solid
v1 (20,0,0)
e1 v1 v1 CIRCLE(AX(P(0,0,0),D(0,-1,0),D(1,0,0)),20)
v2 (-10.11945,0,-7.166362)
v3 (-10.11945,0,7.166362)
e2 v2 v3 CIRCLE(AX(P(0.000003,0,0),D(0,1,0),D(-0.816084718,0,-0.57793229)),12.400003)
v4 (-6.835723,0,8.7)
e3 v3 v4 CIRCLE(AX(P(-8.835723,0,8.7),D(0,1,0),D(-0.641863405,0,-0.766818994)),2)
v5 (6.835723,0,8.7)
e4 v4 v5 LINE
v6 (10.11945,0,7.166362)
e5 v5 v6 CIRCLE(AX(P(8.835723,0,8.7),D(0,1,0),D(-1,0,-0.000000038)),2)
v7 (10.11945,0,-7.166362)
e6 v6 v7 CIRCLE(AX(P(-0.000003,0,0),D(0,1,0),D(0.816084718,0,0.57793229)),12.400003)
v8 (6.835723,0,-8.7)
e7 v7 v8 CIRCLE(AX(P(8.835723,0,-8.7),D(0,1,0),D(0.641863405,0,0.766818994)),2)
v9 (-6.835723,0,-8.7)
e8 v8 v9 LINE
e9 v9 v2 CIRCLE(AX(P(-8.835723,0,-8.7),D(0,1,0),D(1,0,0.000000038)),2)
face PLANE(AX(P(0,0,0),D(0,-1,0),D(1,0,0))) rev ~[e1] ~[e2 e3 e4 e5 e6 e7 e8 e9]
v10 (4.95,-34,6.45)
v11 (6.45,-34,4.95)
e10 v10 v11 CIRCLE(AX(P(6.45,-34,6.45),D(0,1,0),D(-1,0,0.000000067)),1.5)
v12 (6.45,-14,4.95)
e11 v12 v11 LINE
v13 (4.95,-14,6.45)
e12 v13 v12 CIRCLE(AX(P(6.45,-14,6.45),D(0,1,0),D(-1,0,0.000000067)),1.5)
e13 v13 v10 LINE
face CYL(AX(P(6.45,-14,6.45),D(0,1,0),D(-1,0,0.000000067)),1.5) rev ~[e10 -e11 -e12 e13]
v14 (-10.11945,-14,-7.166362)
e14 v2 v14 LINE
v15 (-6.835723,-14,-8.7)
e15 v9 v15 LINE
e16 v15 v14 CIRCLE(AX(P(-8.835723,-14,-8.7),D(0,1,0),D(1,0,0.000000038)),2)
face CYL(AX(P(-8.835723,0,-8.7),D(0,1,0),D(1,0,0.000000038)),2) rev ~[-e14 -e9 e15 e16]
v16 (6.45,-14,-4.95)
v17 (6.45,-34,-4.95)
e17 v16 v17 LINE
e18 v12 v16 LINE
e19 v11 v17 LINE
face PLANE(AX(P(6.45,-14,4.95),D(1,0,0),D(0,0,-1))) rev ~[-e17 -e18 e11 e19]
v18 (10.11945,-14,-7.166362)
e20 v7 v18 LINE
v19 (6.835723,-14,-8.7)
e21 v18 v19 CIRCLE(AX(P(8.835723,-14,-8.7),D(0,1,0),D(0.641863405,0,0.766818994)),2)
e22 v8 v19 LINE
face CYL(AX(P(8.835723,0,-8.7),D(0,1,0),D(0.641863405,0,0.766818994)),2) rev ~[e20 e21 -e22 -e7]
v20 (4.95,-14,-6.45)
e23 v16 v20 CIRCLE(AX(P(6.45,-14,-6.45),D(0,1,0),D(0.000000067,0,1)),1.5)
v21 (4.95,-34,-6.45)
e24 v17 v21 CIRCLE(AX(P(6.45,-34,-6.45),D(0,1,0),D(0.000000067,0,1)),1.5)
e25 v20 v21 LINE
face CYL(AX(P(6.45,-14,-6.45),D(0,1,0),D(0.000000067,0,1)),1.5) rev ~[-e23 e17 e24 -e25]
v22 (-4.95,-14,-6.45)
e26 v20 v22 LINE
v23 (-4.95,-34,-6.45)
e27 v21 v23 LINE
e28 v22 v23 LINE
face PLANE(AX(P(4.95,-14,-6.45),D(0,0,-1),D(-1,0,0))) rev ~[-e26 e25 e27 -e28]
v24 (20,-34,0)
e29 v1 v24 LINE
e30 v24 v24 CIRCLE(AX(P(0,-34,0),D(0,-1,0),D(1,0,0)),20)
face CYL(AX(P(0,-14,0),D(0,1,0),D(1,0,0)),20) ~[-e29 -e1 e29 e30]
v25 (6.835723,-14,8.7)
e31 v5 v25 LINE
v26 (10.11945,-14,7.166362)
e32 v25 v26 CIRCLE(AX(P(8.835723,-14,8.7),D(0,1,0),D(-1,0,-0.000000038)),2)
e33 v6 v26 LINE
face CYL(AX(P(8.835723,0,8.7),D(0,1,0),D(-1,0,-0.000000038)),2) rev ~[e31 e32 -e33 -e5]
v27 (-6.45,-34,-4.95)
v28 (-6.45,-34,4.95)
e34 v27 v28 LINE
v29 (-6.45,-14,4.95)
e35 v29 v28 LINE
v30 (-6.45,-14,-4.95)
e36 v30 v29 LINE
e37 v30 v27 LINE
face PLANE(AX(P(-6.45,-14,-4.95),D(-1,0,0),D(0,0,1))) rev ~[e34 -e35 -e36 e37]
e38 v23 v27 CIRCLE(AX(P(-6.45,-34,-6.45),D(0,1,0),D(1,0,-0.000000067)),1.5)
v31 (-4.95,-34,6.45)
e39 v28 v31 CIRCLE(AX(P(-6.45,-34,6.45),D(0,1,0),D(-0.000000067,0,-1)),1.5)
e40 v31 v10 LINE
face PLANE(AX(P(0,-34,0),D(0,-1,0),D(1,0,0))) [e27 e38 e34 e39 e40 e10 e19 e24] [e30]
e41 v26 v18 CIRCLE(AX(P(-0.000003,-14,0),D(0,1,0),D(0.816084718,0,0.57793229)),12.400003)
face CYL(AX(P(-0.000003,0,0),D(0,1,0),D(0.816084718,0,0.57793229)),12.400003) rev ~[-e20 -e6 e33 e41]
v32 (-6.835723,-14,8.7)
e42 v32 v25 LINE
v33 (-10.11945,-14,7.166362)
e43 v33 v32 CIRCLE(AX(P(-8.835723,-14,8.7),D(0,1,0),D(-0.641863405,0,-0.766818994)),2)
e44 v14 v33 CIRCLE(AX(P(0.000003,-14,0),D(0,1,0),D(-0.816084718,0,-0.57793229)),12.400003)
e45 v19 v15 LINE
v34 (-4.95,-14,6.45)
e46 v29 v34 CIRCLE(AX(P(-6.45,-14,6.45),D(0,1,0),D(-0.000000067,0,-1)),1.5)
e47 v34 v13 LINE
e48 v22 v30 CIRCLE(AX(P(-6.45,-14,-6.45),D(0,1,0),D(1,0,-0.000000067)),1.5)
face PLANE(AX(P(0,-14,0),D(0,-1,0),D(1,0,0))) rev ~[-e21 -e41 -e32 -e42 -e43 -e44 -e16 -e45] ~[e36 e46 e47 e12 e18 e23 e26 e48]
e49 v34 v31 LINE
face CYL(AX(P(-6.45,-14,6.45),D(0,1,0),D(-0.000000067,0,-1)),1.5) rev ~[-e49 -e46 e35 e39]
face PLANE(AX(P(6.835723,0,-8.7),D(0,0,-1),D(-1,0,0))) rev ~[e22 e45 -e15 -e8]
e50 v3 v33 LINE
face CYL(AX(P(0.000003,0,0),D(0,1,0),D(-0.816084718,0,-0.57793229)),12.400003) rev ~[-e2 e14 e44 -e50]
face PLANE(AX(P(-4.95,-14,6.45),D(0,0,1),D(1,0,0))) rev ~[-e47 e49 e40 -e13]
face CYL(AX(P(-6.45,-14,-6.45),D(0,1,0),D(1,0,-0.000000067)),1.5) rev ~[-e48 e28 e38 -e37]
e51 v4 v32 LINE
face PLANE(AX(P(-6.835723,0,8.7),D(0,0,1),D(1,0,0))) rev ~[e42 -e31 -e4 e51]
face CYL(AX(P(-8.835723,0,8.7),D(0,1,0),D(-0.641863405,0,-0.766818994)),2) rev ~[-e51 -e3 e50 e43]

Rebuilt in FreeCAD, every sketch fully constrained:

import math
import FreeCAD as App
import Part
import Sketcher

V = App.Vector

doc = App.newDocument("Part")
body = doc.addObject("PartDesign::Body", "Body")

sketch1 = doc.addObject("Sketcher::SketchObject", "Sketch")
body.addObject(sketch1)
sketch1.AttachmentSupport = (doc.XZ_Plane, [""])
sketch1.MapMode = "FlatFace"
sketch1.addGeometry(Part.Circle(V(0, 0, 0), V(0, 0, 1), 20), False)
sketch1.addGeometry(Part.ArcOfCircle(Part.Circle(V(-8.8, -8.7, 0), V(0, 0, 1), 2), math.radians(130), math.radians(360)), False)
sketch1.addGeometry(Part.ArcOfCircle(Part.Circle(V(0, 0, 0), V(0, 0, 1), 12.4), math.radians(145), math.radians(215)), False)
sketch1.addGeometry(Part.ArcOfCircle(Part.Circle(V(-8.8, 8.7, 0), V(0, 0, 1), 2), math.radians(0), math.radians(230)), False)
sketch1.addGeometry(Part.LineSegment(V(-6.8, 8.7, 0), V(6.8, 8.7, 0)), False)
sketch1.addGeometry(Part.ArcOfCircle(Part.Circle(V(8.8, 8.7, 0), V(0, 0, 1), 2), math.radians(-50), math.radians(180)), False)
sketch1.addGeometry(Part.ArcOfCircle(Part.Circle(V(0, 0, 0), V(0, 0, 1), 12.4), math.radians(-35), math.radians(35)), False)
sketch1.addGeometry(Part.ArcOfCircle(Part.Circle(V(8.8, -8.7, 0), V(0, 0, 1), 2), math.radians(180), math.radians(410)), False)
sketch1.addGeometry(Part.LineSegment(V(6.8, -8.7, 0), V(-6.8, -8.7, 0)), False)
sketch1.addConstraint(Sketcher.Constraint("Coincident", 1, 1, 2, 2))
sketch1.addConstraint(Sketcher.Constraint("Coincident", 2, 1, 3, 2))
sketch1.addConstraint(Sketcher.Constraint("Coincident", 3, 1, 4, 1))
sketch1.addConstraint(Sketcher.Constraint("Coincident", 4, 2, 5, 2))
sketch1.addConstraint(Sketcher.Constraint("Coincident", 5, 1, 6, 2))
sketch1.addConstraint(Sketcher.Constraint("Coincident", 6, 1, 7, 2))
sketch1.addConstraint(Sketcher.Constraint("Coincident", 7, 1, 8, 1))
sketch1.addConstraint(Sketcher.Constraint("Coincident", 8, 2, 1, 2))
sketch1.addConstraint(Sketcher.Constraint("Horizontal", 4))
sketch1.addConstraint(Sketcher.Constraint("Horizontal", 8))
sketch1.addConstraint(Sketcher.Constraint("Coincident", 0, 3, -1, 1))
sketch1.addConstraint(Sketcher.Constraint("Coincident", 2, 3, -1, 1))
sketch1.addConstraint(Sketcher.Constraint("Coincident", 6, 3, -1, 1))
sketch1.addConstraint(Sketcher.Constraint("Equal", 1, 3))
sketch1.addConstraint(Sketcher.Constraint("Equal", 3, 5))
sketch1.addConstraint(Sketcher.Constraint("Equal", 2, 6))
sketch1.addConstraint(Sketcher.Constraint("Equal", 5, 7))
sketch1.addConstraint(Sketcher.Constraint("Symmetric", 1, 3, 5, 3, -1, 1))
sketch1.addConstraint(Sketcher.Constraint("Symmetric", 3, 3, 7, 3, -1, 1))
sketch1.addConstraint(Sketcher.Constraint("Symmetric", 3, 3, 5, 3, -2))
sketch1.addConstraint(Sketcher.Constraint("Horizontal", 5, 3, 3, 1))
sketch1.addConstraint(Sketcher.Constraint("Horizontal", 1, 3, 7, 1))
sketch1.addConstraint(Sketcher.Constraint("Diameter", 0, 40.0))
sketch1.addConstraint(Sketcher.Constraint("Radius", 1, 2.0))
sketch1.addConstraint(Sketcher.Constraint("DistanceY", 1, 3, -1, 1, 8.7))
sketch1.addConstraint(Sketcher.Constraint("Radius", 2, 12.400003))
sketch1.addConstraint(Sketcher.Constraint("DistanceX", 4, 1, 4, 2, 13.671446))
pad1 = doc.addObject("PartDesign::Pad", "Pad")
body.addObject(pad1)
pad1.Profile = sketch1
pad1.Length = 14

sketch2 = doc.addObject("Sketcher::SketchObject", "Sketch001")
body.addObject(sketch2)
sketch2.AttachmentSupport = (doc.XZ_Plane, [""])
sketch2.MapMode = "FlatFace"
sketch2.AttachmentOffset = App.Placement(V(0, 0, 14), App.Rotation())
sketch2.addGeometry(Part.Circle(V(0, 0, 0), V(0, 0, 1), 20), False)
sketch2.addGeometry(Part.LineSegment(V(-6.5, -5, 0), V(-6.5, 5, 0)), False)
sketch2.addGeometry(Part.ArcOfCircle(Part.Circle(V(-6.4, 6.4, 0), V(0, 0, 1), 1.5), math.radians(0), math.radians(270)), False)
sketch2.addGeometry(Part.LineSegment(V(-5, 6.5, 0), V(5, 6.5, 0)), False)
sketch2.addGeometry(Part.ArcOfCircle(Part.Circle(V(6.4, 6.4, 0), V(0, 0, 1), 1.5), math.radians(-90), math.radians(180)), False)
sketch2.addGeometry(Part.LineSegment(V(6.5, 5, 0), V(6.5, -5, 0)), False)
sketch2.addGeometry(Part.ArcOfCircle(Part.Circle(V(6.4, -6.4, 0), V(0, 0, 1), 1.5), math.radians(-180), math.radians(90)), False)
sketch2.addGeometry(Part.LineSegment(V(5, -6.5, 0), V(-5, -6.5, 0)), False)
sketch2.addGeometry(Part.ArcOfCircle(Part.Circle(V(-6.4, -6.4, 0), V(0, 0, 1), 1.5), math.radians(90), math.radians(360)), False)
sketch2.addConstraint(Sketcher.Constraint("Coincident", 1, 2, 2, 2))
sketch2.addConstraint(Sketcher.Constraint("Coincident", 2, 1, 3, 1))
sketch2.addConstraint(Sketcher.Constraint("Coincident", 3, 2, 4, 2))
sketch2.addConstraint(Sketcher.Constraint("Coincident", 4, 1, 5, 1))
sketch2.addConstraint(Sketcher.Constraint("Coincident", 5, 2, 6, 2))
sketch2.addConstraint(Sketcher.Constraint("Coincident", 6, 1, 7, 1))
sketch2.addConstraint(Sketcher.Constraint("Coincident", 7, 2, 8, 2))
sketch2.addConstraint(Sketcher.Constraint("Coincident", 8, 1, 1, 1))
sketch2.addConstraint(Sketcher.Constraint("Vertical", 1))
sketch2.addConstraint(Sketcher.Constraint("Horizontal", 3))
sketch2.addConstraint(Sketcher.Constraint("Vertical", 5))
sketch2.addConstraint(Sketcher.Constraint("Horizontal", 7))
sketch2.addConstraint(Sketcher.Constraint("Coincident", 0, 3, -1, 1))
sketch2.addConstraint(Sketcher.Constraint("Equal", 2, 4))
sketch2.addConstraint(Sketcher.Constraint("Equal", 4, 6))
sketch2.addConstraint(Sketcher.Constraint("Equal", 6, 8))
sketch2.addConstraint(Sketcher.Constraint("Symmetric", 2, 3, 6, 3, -1, 1))
sketch2.addConstraint(Sketcher.Constraint("Symmetric", 4, 3, 8, 3, -1, 1))
sketch2.addConstraint(Sketcher.Constraint("Symmetric", 2, 3, 4, 3, -2))
sketch2.addConstraint(Sketcher.Constraint("Horizontal", 4, 3, 2, 1))
sketch2.addConstraint(Sketcher.Constraint("Horizontal", 8, 3, 6, 1))
sketch2.addConstraint(Sketcher.Constraint("Vertical", 8, 3, 1, 2))
sketch2.addConstraint(Sketcher.Constraint("Vertical", 6, 3, 4, 1))
sketch2.addConstraint(Sketcher.Constraint("Equal", 7, 1))
sketch2.addConstraint(Sketcher.Constraint("Diameter", 0, 40.0))
sketch2.addConstraint(Sketcher.Constraint("Radius", 2, 1.5))
sketch2.addConstraint(Sketcher.Constraint("DistanceX", 3, 1, 3, 2, 9.9))
pad2 = doc.addObject("PartDesign::Pad", "Pad001")
body.addObject(pad2)
pad2.Profile = sketch2
pad2.Length = 20

doc.recompute()
